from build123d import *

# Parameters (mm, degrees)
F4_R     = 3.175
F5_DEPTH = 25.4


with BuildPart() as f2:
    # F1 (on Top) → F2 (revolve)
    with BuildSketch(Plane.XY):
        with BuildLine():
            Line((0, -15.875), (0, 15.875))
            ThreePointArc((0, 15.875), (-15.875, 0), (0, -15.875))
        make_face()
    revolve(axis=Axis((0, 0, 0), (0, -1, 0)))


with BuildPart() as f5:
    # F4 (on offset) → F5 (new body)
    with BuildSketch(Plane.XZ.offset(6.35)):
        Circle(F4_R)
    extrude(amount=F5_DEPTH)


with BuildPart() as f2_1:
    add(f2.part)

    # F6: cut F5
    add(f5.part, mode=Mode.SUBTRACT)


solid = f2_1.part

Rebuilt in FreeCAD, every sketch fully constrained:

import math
import FreeCAD as App
import Part
import Sketcher
Q = App.Units.Quantity

doc = App.newDocument("Part")
params = doc.addObject("Spreadsheet::Sheet", "Params")
for row, (alias, value) in enumerate([
    ("sketch1_radius", "0.625 in"),
    ("revolution_angle", "360 deg"),
    ("sketch2_diameter", "0.25 in"),
    ("pad1_length", "1 in"),
], start=1):
    params.set(f"A{row}", alias)
    params.set(f"B{row}", "=" + value)
    params.setAlias(f"B{row}", alias)

body = doc.addObject("PartDesign::Body", "Body")

sketch1 = body.newObject("Sketcher::SketchObject", "Sketch")
sketch1.AttachmentSupport = (doc.getObject("XY_Plane"), [""])
sketch1.MapMode = "FlatFace"
sketch1.addGeometry([
    Part.LineSegment(App.Vector(0, -16, 0), App.Vector(0, 16, 0)),
    Part.ArcOfCircle(Part.Circle(App.Vector(0, 0, 0), App.Vector(0, 0, 1), 16), math.radians(90), math.radians(270)),
], False)
sketch1.addConstraint([
    Sketcher.Constraint("Coincident", 0, 1, 1, 2),
    Sketcher.Constraint("Coincident", 1, 1, 0, 2),
    Sketcher.Constraint("Vertical", 0),
    Sketcher.Constraint("Coincident", 1, 3, -1, 1),
    Sketcher.Constraint("PointOnObject", 0, 1, -2),
    Sketcher.Constraint("Radius", 1, Q("0.625 in")),
])
sketch1.setExpression("Constraints[5]", "Params.sketch1_radius")
revolution = body.newObject("PartDesign::Revolution", "Revolution")
revolution.Profile = sketch1
revolution.ReferenceAxis = (sketch1, ["V_Axis"])
revolution.setExpression("Angle", "Params.revolution_angle")
body2 = doc.addObject("PartDesign::Body", "Body001")

sketch2 = body2.newObject("Sketcher::SketchObject", "Sketch001")
sketch2.AttachmentSupport = (doc.getObject("XZ_Plane001"), [""])
sketch2.MapMode = "FlatFace"
sketch2.AttachmentOffset = App.Placement(App.Vector(0, 0, 0.25 * 25.4), App.Rotation())
sketch2.addGeometry(Part.Circle(App.Vector(0, 0, 0), App.Vector(0, 0, 1), 3.2), False)
sketch2.addConstraint([
    Sketcher.Constraint("Coincident", 0, 3, -1, 1),
    Sketcher.Constraint("Diameter", 0, Q("0.25 in")),
])
sketch2.setExpression("Constraints[1]", "Params.sketch2_diameter")
pad1 = body2.newObject("PartDesign::Pad", "Pad")
pad1.Profile = sketch2
pad1.setExpression("Length", "Params.pad1_length")
doc.recompute()

boolean = body.newObject("PartDesign::Boolean", "Boolean")
boolean.Type = "Cut"
boolean.addObjects([body2])

doc.recompute()
